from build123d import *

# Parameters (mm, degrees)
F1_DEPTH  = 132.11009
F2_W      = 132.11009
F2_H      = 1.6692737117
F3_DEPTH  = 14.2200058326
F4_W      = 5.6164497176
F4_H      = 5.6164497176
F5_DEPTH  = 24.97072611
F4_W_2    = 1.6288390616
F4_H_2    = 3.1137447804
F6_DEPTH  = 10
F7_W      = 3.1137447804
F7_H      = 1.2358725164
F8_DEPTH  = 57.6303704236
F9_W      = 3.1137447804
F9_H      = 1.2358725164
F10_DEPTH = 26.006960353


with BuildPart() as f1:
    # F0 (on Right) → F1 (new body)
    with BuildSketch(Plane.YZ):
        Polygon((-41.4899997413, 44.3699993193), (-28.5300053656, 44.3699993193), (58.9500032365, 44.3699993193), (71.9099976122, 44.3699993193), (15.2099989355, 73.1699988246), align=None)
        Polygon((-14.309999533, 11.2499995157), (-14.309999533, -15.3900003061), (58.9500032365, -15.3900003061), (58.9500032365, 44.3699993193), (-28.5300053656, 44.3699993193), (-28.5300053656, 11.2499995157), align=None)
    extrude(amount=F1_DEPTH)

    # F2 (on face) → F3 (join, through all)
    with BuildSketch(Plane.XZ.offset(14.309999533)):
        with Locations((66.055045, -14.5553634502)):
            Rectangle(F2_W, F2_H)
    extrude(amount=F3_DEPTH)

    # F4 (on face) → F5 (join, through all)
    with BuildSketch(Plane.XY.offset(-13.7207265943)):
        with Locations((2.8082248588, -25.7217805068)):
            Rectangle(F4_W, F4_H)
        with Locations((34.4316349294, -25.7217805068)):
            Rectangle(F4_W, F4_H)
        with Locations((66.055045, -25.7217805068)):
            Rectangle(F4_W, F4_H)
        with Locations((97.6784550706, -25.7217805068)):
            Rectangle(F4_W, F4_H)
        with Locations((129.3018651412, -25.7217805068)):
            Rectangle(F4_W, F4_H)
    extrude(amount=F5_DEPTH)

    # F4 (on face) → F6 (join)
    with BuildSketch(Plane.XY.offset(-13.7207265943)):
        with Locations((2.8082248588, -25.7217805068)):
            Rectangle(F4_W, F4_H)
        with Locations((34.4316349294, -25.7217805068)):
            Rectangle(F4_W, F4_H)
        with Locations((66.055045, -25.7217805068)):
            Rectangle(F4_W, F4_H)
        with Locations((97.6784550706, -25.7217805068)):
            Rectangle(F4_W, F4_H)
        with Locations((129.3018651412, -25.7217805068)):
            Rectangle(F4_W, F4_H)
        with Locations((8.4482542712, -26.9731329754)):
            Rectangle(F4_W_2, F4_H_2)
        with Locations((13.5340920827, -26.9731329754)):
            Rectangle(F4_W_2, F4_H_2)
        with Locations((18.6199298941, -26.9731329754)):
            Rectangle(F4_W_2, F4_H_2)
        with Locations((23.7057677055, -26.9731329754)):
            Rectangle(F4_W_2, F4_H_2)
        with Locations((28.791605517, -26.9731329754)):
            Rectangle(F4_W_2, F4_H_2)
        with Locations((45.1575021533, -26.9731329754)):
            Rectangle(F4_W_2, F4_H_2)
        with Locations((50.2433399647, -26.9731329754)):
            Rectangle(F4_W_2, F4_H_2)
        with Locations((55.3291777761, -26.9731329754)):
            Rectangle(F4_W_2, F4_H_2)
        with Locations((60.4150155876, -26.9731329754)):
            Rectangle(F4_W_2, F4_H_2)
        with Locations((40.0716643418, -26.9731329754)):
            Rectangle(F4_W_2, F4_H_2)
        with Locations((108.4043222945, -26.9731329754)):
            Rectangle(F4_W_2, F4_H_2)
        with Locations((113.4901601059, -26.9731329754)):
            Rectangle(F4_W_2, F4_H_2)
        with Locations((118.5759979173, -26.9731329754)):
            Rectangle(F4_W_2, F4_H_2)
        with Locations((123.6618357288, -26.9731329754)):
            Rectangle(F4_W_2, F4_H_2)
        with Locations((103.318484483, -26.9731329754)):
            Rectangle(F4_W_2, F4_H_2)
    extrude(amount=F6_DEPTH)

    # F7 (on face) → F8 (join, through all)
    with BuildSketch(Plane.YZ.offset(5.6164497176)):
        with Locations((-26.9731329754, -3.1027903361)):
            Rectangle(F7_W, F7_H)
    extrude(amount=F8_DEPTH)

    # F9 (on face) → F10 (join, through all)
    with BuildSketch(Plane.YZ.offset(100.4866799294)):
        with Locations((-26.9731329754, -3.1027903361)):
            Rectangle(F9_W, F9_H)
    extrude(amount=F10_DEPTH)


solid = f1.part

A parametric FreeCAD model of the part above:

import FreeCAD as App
import Part
import Sketcher
from FreeCAD import Vector


def add_polygon(sketch, points):
    """Adds a closed chain of lines whose ends are joined by coincident constraints."""
    first, n = sketch.GeometryCount, len(points)
    for a, b in zip(points, points[1:] + points[:1]):
        sketch.addGeometry(Part.LineSegment(App.Vector(*a, 0), App.Vector(*b, 0)), False)
    for i in range(n):
        sketch.addConstraint(Sketcher.Constraint("Coincident", first + i, 2, first + (i + 1) % n, 1))

doc = App.newDocument("Part")
params = doc.addObject("Spreadsheet::Sheet", "Params")
for row, (alias, value) in enumerate([
    ("sketch1_height", "33.12 mm"),
    ("sketch1_height2", "26.64 mm"),
    ("pad1_length", "132.11009 mm"),
    ("pad2_length", "14.220006 mm"),
    ("pad4_length", "10 mm"),
    ("pad5_length", "57.63037 mm"),
], start=1):
    params.set(f"A{row}", alias)
    params.set(f"B{row}", "=" + value)
    params.setAlias(f"B{row}", alias)

body = doc.addObject("PartDesign::Body", "Body")

# Sketch on YZ plane
sketch1 = body.newObject("Sketcher::SketchObject", "Sketch")
sketch1.AttachmentSupport = (doc.getObject("YZ_Plane"), [""])
sketch1.MapMode = "FlatFace"
add_polygon(sketch1, [(-41, 44), (-29, 44), (-29, 11), (-14, 11), (-14, -15), (59, -15), (59, 44), (72, 44), (15, 73)])  # lines 0-8
sketch1.addConstraint([
    Sketcher.Constraint("Horizontal", 0),
    Sketcher.Constraint("Vertical", 1),
    Sketcher.Constraint("Horizontal", 2),
    Sketcher.Constraint("Vertical", 3),
    Sketcher.Constraint("Horizontal", 4),
    Sketcher.Constraint("Vertical", 5),
    Sketcher.Constraint("Horizontal", 6),
    Sketcher.Constraint("Horizontal", 0, 2, 5, 2),
    Sketcher.Constraint("Equal", 0, 6),
    Sketcher.Constraint("Equal", 7, 8),
    Sketcher.Constraint("DistanceY", 1, 2, 1, 1, 33.12),
    Sketcher.Constraint("DistanceY", 3, 2, 3, 1, 26.64),
    Sketcher.Constraint("DistanceY", 0, 2, 7, 2, 28.8),
    Sketcher.Constraint("DistanceX", 7, 2, 6, 2, 56.699999),
    Sketcher.Constraint("DistanceY", -1, 1, 0, 2, 44.369999),
    Sketcher.Constraint("DistanceX", 2, 2, -1, 1, 14.31),
    Sketcher.Constraint("DistanceX", -1, 1, 7, 2, 15.209999),
    Sketcher.Constraint("DistanceX", 0, 1, 0, 2, 12.959994),
])
sketch1.setExpression("Constraints[19]", "Params.sketch1_height")
sketch1.setExpression("Constraints[20]", "Params.sketch1_height2")
pad1 = body.newObject("PartDesign::Pad", "Pad")
pad1.Profile = sketch1
pad1.setExpression("Length", "Params.pad1_length")

# Sketch on XZ plane
sketch2 = body.newObject("Sketcher::SketchObject", "Sketch001")
sketch2.AttachmentSupport = (doc.getObject("XZ_Plane"), [""])
sketch2.MapMode = "FlatFace"
sketch2.AttachmentOffset = App.Placement(Vector(0, 0, 14.31), App.Rotation())
add_polygon(sketch2, [(0, -13.7), (0, -15.4), (132.1, -15.4), (132.1, -13.7)])  # lines 0-3
sketch2.addConstraint([
    Sketcher.Constraint("Vertical", 0),
    Sketcher.Constraint("Horizontal", 1),
    Sketcher.Constraint("Vertical", 2),
    Sketcher.Constraint("Horizontal", 3),
    Sketcher.Constraint("PointOnObject", 0, 2, -2),
    Sketcher.Constraint("DistanceY", 0, 2, -1, 1, 15.39),
    Sketcher.Constraint("DistanceX", 1, 1, 1, 2, 132.11009),
    Sketcher.Constraint("DistanceY", 0, 2, 0, 1, 1.669274),
])
pad2 = body.newObject("PartDesign::Pad", "Pad001")
pad2.Profile = sketch2
pad2.setExpression("Length", "Params.pad2_length")

# Sketch on XY plane
sketch3 = body.newObject("Sketcher::SketchObject", "Sketch002")
sketch3.AttachmentSupport = (doc.getObject("XY_Plane"), [""])
sketch3.MapMode = "FlatFace"
sketch3.AttachmentOffset = App.Placement(Vector(0, 0, -13.720727), App.Rotation())
add_polygon(sketch3, [(0, -23), (0, -29), (6, -29), (6, -23)])  # lines 0-3
add_polygon(sketch3, [(32, -23), (32, -29), (37, -29), (37, -23)])  # lines 4-7
add_polygon(sketch3, [(63, -23), (63, -29), (69, -29), (69, -23)])  # lines 8-11
add_polygon(sketch3, [(95, -23), (95, -29), (100, -29), (100, -23)])  # lines 12-15
add_polygon(sketch3, [(126, -23), (126, -29), (132, -29), (132, -23)])  # lines 16-19
sketch3.addConstraint([
    Sketcher.Constraint("Vertical", 0),
    Sketcher.Constraint("Horizontal", 1),
    Sketcher.Constraint("Vertical", 2),
    Sketcher.Constraint("Horizontal", 3),
    Sketcher.Constraint("Vertical", 4),
    Sketcher.Constraint("Horizontal", 5),
    Sketcher.Constraint("Vertical", 6),
    Sketcher.Constraint("Horizontal", 7),
    Sketcher.Constraint("Vertical", 8),
    Sketcher.Constraint("Horizontal", 9),
    Sketcher.Constraint("Vertical", 10),
    Sketcher.Constraint("Horizontal", 11),
    Sketcher.Constraint("Vertical", 12),
    Sketcher.Constraint("Horizontal", 13),
    Sketcher.Constraint("Vertical", 14),
    Sketcher.Constraint("Horizontal", 15),
    Sketcher.Constraint("Vertical", 16),
    Sketcher.Constraint("Horizontal", 17),
    Sketcher.Constraint("Vertical", 18),
    Sketcher.Constraint("Horizontal", 19),
    Sketcher.Constraint("PointOnObject", 0, 2, -2),
    Sketcher.Constraint("Horizontal", 1, 2, 4, 2),
    Sketcher.Constraint("Horizontal", 3, 2, 6, 2),
    Sketcher.Constraint("Horizontal", 5, 2, 8, 2),
    Sketcher.Constraint("Horizontal", 7, 2, 10, 2),
    Sketcher.Constraint("Horizontal", 9, 2, 12, 2),
    Sketcher.Constraint("Horizontal", 11, 2, 14, 2),
    Sketcher.Constraint("Horizontal", 13, 2, 16, 2),
    Sketcher.Constraint("Horizontal", 15, 2, 18, 2),
    Sketcher.Constraint("Equal", 3, 5),
    Sketcher.Constraint("Equal", 7, 9),
    Sketcher.Constraint("Equal", 11, 13),
    Sketcher.Constraint("Equal", 15, 17),
    Sketcher.Constraint("Equal", 19, 0),
    Sketcher.Constraint("DistanceX", 1, 1, 1, 2, 5.61645),
    Sketcher.Constraint("DistanceX", -1, 1, 4, 2, 31.62341),
    Sketcher.Constraint("DistanceX", -1, 1, 8, 2, 63.24682),
    Sketcher.Constraint("DistanceX", -1, 1, 12, 2, 94.87023),
    Sketcher.Constraint("DistanceX", -1, 1, 16, 2, 126.49364),
    Sketcher.Constraint("DistanceY", 0, 2, -1, 1, 28.530005),
])
pad3 = body.newObject("PartDesign::Pad", "Pad002")
pad3.Profile = sketch3
pad3.Type = "UpToLast"

# Sketch on XY plane
sketch4 = body.newObject("Sketcher::SketchObject", "Sketch003")
sketch4.AttachmentSupport = (doc.getObject("XY_Plane"), [""])
sketch4.MapMode = "FlatFace"
sketch4.AttachmentOffset = App.Placement(Vector(0, 0, -13.720727), App.Rotation())
add_polygon(sketch4, [(0, -22.9), (0, -28.5), (5.6, -28.5), (5.6, -22.9)])  # lines 0-3
add_polygon(sketch4, [(31.6, -22.9), (31.6, -28.5), (37.2, -28.5), (37.2, -22.9)])  # lines 4-7
add_polygon(sketch4, [(63.2, -22.9), (63.2, -28.5), (68.9, -28.5), (68.9, -22.9)])  # lines 8-11
add_polygon(sketch4, [(94.9, -22.9), (94.9, -28.5), (100.5, -28.5), (100.5, -22.9)])  # lines 12-15
add_polygon(sketch4, [(126.5, -22.9), (126.5, -28.5), (132.1, -28.5), (132.1, -22.9)])  # lines 16-19
add_polygon(sketch4, [(7.6, -25.4), (7.6, -28.5), (9.3, -28.5), (9.3, -25.4)])  # lines 20-23
add_polygon(sketch4, [(12.7, -25.4), (12.7, -28.5), (14.3, -28.5), (14.3, -25.4)])  # lines 24-27
add_polygon(sketch4, [(17.8, -25.4), (17.8, -28.5), (19.4, -28.5), (19.4, -25.4)])  # lines 28-31
add_polygon(sketch4, [(22.9, -25.4), (22.9, -28.5), (24.5, -28.5), (24.5, -25.4)])  # lines 32-35
add_polygon(sketch4, [(28, -25.4), (28, -28.5), (29.6, -28.5), (29.6, -25.4)])  # lines 36-39
add_polygon(sketch4, [(44.3, -25.4), (44.3, -28.5), (46, -28.5), (46, -25.4)])  # lines 40-43
add_polygon(sketch4, [(49.4, -25.4), (49.4, -28.5), (51.1, -28.5), (51.1, -25.4)])  # lines 44-47
add_polygon(sketch4, [(54.5, -25.4), (54.5, -28.5), (56.1, -28.5), (56.1, -25.4)])  # lines 48-51
add_polygon(sketch4, [(59.6, -25.4), (59.6, -28.5), (61.2, -28.5), (61.2, -25.4)])  # lines 52-55
add_polygon(sketch4, [(39.3, -25.4), (39.3, -28.5), (40.9, -28.5), (40.9, -25.4)])  # lines 56-59
add_polygon(sketch4, [(107.6, -25.4), (107.6, -28.5), (109.2, -28.5), (109.2, -25.4)])  # lines 60-63
add_polygon(sketch4, [(112.7, -25.4), (112.7, -28.5), (114.3, -28.5), (114.3, -25.4)])  # lines 64-67
add_polygon(sketch4, [(117.8, -25.4), (117.8, -28.5), (119.4, -28.5), (119.4, -25.4)])  # lines 68-71
add_polygon(sketch4, [(122.8, -25.4), (122.8, -28.5), (124.5, -28.5), (124.5, -25.4)])  # lines 72-75
add_polygon(sketch4, [(102.5, -25.4), (102.5, -28.5), (104.1, -28.5), (104.1, -25.4)])  # lines 76-79
sketch4.addConstraint([
    Sketcher.Constraint("Vertical", 0),
    Sketcher.Constraint("Horizontal", 1),
    Sketcher.Constraint("Vertical", 2),
    Sketcher.Constraint("Horizontal", 3),
    Sketcher.Constraint("Vertical", 4),
    Sketcher.Constraint("Horizontal", 5),
    Sketcher.Constraint("Vertical", 6),
    Sketcher.Constraint("Horizontal", 7),
    Sketcher.Constraint("Vertical", 8),
    Sketcher.Constraint("Horizontal", 9),
    Sketcher.Constraint("Vertical", 10),
    Sketcher.Constraint("Horizontal", 11),
    Sketcher.Constraint("Vertical", 12),
    Sketcher.Constraint("Horizontal", 13),
    Sketcher.Constraint("Vertical", 14),
    Sketcher.Constraint("Horizontal", 15),
    Sketcher.Constraint("Vertical", 16),
    Sketcher.Constraint("Horizontal", 17),
    Sketcher.Constraint("Vertical", 18),
    Sketcher.Constraint("Horizontal", 19),
    Sketcher.Constraint("Vertical", 20),
    Sketcher.Constraint("Horizontal", 21),
    Sketcher.Constraint("Vertical", 22),
    Sketcher.Constraint("Horizontal", 23),
    Sketcher.Constraint("Vertical", 24),
    Sketcher.Constraint("Horizontal", 25),
    Sketcher.Constraint("Vertical", 26),
    Sketcher.Constraint("Horizontal", 27),
    Sketcher.Constraint("Vertical", 28),
    Sketcher.Constraint("Horizontal", 29),
    Sketcher.Constraint("Vertical", 30),
    Sketcher.Constraint("Horizontal", 31),
    Sketcher.Constraint("Vertical", 32),
    Sketcher.Constraint("Horizontal", 33),
    Sketcher.Constraint("Vertical", 34),
    Sketcher.Constraint("Horizontal", 35),
    Sketcher.Constraint("Vertical", 36),
    Sketcher.Constraint("Horizontal", 37),
    Sketcher.Constraint("Vertical", 38),
    Sketcher.Constraint("Horizontal", 39),
    Sketcher.Constraint("Vertical", 40),
    Sketcher.Constraint("Horizontal", 41),
    Sketcher.Constraint("Vertical", 42),
    Sketcher.Constraint("Horizontal", 43),
    Sketcher.Constraint("Vertical", 44),
    Sketcher.Constraint("Horizontal", 45),
    Sketcher.Constraint("Vertical", 46),
    Sketcher.Constraint("Horizontal", 47),
    Sketcher.Constraint("Vertical", 48),
    Sketcher.Constraint("Horizontal", 49),
    Sketcher.Constraint("Vertical", 50),
    Sketcher.Constraint("Horizontal", 51),
    Sketcher.Constraint("Vertical", 52),
    Sketcher.Constraint("Horizontal", 53),
    Sketcher.Constraint("Vertical", 54),
    Sketcher.Constraint("Horizontal", 55),
    Sketcher.Constraint("Vertical", 56),
    Sketcher.Constraint("Horizontal", 57),
    Sketcher.Constraint("Vertical", 58),
    Sketcher.Constraint("Horizontal", 59),
    Sketcher.Constraint("Vertical", 60),
    Sketcher.Constraint("Horizontal", 61),
    Sketcher.Constraint("Vertical", 62),
    Sketcher.Constraint("Horizontal", 63),
    Sketcher.Constraint("Vertical", 64),
    Sketcher.Constraint("Horizontal", 65),
    Sketcher.Constraint("Vertical", 66),
    Sketcher.Constraint("Horizontal", 67),
    Sketcher.Constraint("Vertical", 68),
    Sketcher.Constraint("Horizontal", 69),
    Sketcher.Constraint("Vertical", 70),
    Sketcher.Constraint("Horizontal", 71),
    Sketcher.Constraint("Vertical", 72),
    Sketcher.Constraint("Horizontal", 73),
    Sketcher.Constraint("Vertical", 74),
    Sketcher.Constraint("Horizontal", 75),
    Sketcher.Constraint("Vertical", 76),
    Sketcher.Constraint("Horizontal", 77),
    Sketcher.Constraint("Vertical", 78),
    Sketcher.Constraint("Horizontal", 79),
    Sketcher.Constraint("PointOnObject", 0, 2, -2),
    Sketcher.Constraint("Horizontal", 1, 2, 4, 2),
    Sketcher.Constraint("Horizontal", 3, 2, 6, 2),
    Sketcher.Constraint("Horizontal", 5, 2, 8, 2),
    Sketcher.Constraint("Horizontal", 7, 2, 10, 2),
    Sketcher.Constraint("Horizontal", 9, 2, 12, 2),
    Sketcher.Constraint("Horizontal", 11, 2, 14, 2),
    Sketcher.Constraint("Horizontal", 13, 2, 16, 2),
    Sketcher.Constraint("Horizontal", 15, 2, 18, 2),
    Sketcher.Constraint("Horizontal", 17, 2, 20, 2),
    Sketcher.Constraint("Horizontal", 21, 2, 24, 2),
    Sketcher.Constraint("Horizontal", 23, 2, 26, 2),
    Sketcher.Constraint("Horizontal", 25, 2, 28, 2),
    Sketcher.Constraint("Horizontal", 27, 2, 30, 2),
    Sketcher.Constraint("Horizontal", 29, 2, 32, 2),
    Sketcher.Constraint("Horizontal", 31, 2, 34, 2),
    Sketcher.Constraint("Horizontal", 33, 2, 36, 2),
    Sketcher.Constraint("Horizontal", 35, 2, 38, 2),
    Sketcher.Constraint("Horizontal", 37, 2, 40, 2),
    Sketcher.Constraint("Horizontal", 39, 2, 42, 2),
    Sketcher.Constraint("Horizontal", 41, 2, 44, 2),
    Sketcher.Constraint("Horizontal", 43, 2, 46, 2),
    Sketcher.Constraint("Horizontal", 45, 2, 48, 2),
    Sketcher.Constraint("Horizontal", 47, 2, 50, 2),
    Sketcher.Constraint("Horizontal", 49, 2, 52, 2),
    Sketcher.Constraint("Horizontal", 51, 2, 54, 2),
    Sketcher.Constraint("Horizontal", 53, 2, 56, 2),
    Sketcher.Constraint("Horizontal", 55, 2, 58, 2),
    Sketcher.Constraint("Horizontal", 57, 2, 60, 2),
    Sketcher.Constraint("Horizontal", 59, 2, 62, 2),
    Sketcher.Constraint("Horizontal", 61, 2, 64, 2),
    Sketcher.Constraint("Horizontal", 63, 2, 66, 2),
    Sketcher.Constraint("Horizontal", 65, 2, 68, 2),
    Sketcher.Constraint("Horizontal", 67, 2, 70, 2),
    Sketcher.Constraint("Horizontal", 69, 2, 72, 2),
    Sketcher.Constraint("Horizontal", 71, 2, 74, 2),
    Sketcher.Constraint("Horizontal", 73, 2, 76, 2),
    Sketcher.Constraint("Horizontal", 75, 2, 78, 2),
    Sketcher.Constraint("Equal", 3, 5),
    Sketcher.Constraint("Equal", 7, 9),
    Sketcher.Constraint("Equal", 11, 13),
    Sketcher.Constraint("Equal", 15, 17),
    Sketcher.Constraint("Equal", 23, 25),
    Sketcher.Constraint("Equal", 27, 29),
    Sketcher.Constraint("Equal", 31, 33),
    Sketcher.Constraint("Equal", 35, 37),
    Sketcher.Constraint("Equal", 39, 41),
    Sketcher.Constraint("Equal", 43, 45),
    Sketcher.Constraint("Equal", 47, 49),
    Sketcher.Constraint("Equal", 51, 53),
    Sketcher.Constraint("Equal", 55, 57),
    Sketcher.Constraint("Equal", 59, 61),
    Sketcher.Constraint("Equal", 63, 65),
    Sketcher.Constraint("Equal", 67, 69),
    Sketcher.Constraint("Equal", 71, 73),
    Sketcher.Constraint("Equal", 75, 77),
    Sketcher.Constraint("Equal", 19, 0),
    Sketcher.Constraint("DistanceX", 1, 1, 1, 2, 5.61645),
    Sketcher.Constraint("DistanceX", 21, 1, 21, 2, 1.628839),
    Sketcher.Constraint("DistanceY", 20, 2, 20, 1, 3.113745),
    Sketcher.Constraint("DistanceX", -1, 1, 4, 2, 31.62341),
    Sketcher.Constraint("DistanceX", -1, 1, 8, 2, 63.24682),
    Sketcher.Constraint("DistanceX", -1, 1, 12, 2, 94.87023),
    Sketcher.Constraint("DistanceX", -1, 1, 16, 2, 126.49364),
    Sketcher.Constraint("DistanceY", 22, 2, -1, 1, 25.416261),
    Sketcher.Constraint("DistanceX", -1, 1, 25, 2, 14.348512),
    Sketcher.Constraint("DistanceX", -1, 1, 28, 2, 17.80551),
    Sketcher.Constraint("DistanceX", -1, 1, 32, 2, 22.891348),
    Sketcher.Constraint("DistanceX", -1, 1, 41, 2, 45.971922),
    Sketcher.Constraint("DistanceX", -1, 1, 44, 2, 49.42892),
    Sketcher.Constraint("DistanceX", -1, 1, 48, 2, 54.514758),
    Sketcher.Constraint("DistanceX", -1, 1, 61, 2, 109.218742),
    Sketcher.Constraint("DistanceX", -1, 1, 64, 2, 112.675741),
    Sketcher.Constraint("DistanceX", -1, 1, 68, 2, 117.761578),
    Sketcher.Constraint("DistanceX", -1, 1, 20, 2, 7.633835),
    Sketcher.Constraint("DistanceX", -1, 1, 36, 2, 27.977186),
    Sketcher.Constraint("DistanceX", -1, 1, 52, 2, 59.600596),
    Sketcher.Constraint("DistanceX", -1, 1, 56, 2, 39.257245),
    Sketcher.Constraint("DistanceX", -1, 1, 72, 2, 122.847416),
    Sketcher.Constraint("DistanceX", -1, 1, 76, 2, 102.504065),
])
pad4 = body.newObject("PartDesign::Pad", "Pad003")
pad4.Profile = sketch4
pad4.setExpression("Length", "Params.pad4_length")

# Sketch on YZ plane
sketch5 = body.newObject("Sketcher::SketchObject", "Sketch004")
sketch5.AttachmentSupport = (doc.getObject("YZ_Plane"), [""])
sketch5.MapMode = "FlatFace"
sketch5.AttachmentOffset = App.Placement(Vector(0, 0, 5.61645), App.Rotation())
add_polygon(sketch5, [(-28.5, -2.5), (-28.5, -3.7), (-25.4, -3.7), (-25.4, -2.5)])  # lines 0-3
sketch5.addConstraint([
    Sketcher.Constraint("Vertical", 0),
    Sketcher.Constraint("Horizontal", 1),
    Sketcher.Constraint("Vertical", 2),
    Sketcher.Constraint("Horizontal", 3),
    Sketcher.Constraint("DistanceX", 1, 1, 1, 2, 3.113745),
    Sketcher.Constraint("DistanceY", 0, 2, 0, 1, 1.235873),
    Sketcher.Constraint("DistanceX", 1, 2, -1, 1, 25.416261),
    Sketcher.Constraint("DistanceY", 0, 2, -1, 1, 3.720727),
])
pad5 = body.newObject("PartDesign::Pad", "Pad004")
pad5.Profile = sketch5
pad5.setExpression("Length", "Params.pad5_length")

# Sketch on YZ plane
sketch6 = body.newObject("Sketcher::SketchObject", "Sketch005")
sketch6.AttachmentSupport = (doc.getObject("YZ_Plane"), [""])
sketch6.MapMode = "FlatFace"
sketch6.AttachmentOffset = App.Placement(Vector(0, 0, 100.48668), App.Rotation())
add_polygon(sketch6, [(-28.5, -2.5), (-28.5, -3.7), (-25.4, -3.7), (-25.4, -2.5)])  # lines 0-3
sketch6.addConstraint([
    Sketcher.Constraint("Vertical", 0),
    Sketcher.Constraint("Horizontal", 1),
    Sketcher.Constraint("Vertical", 2),
    Sketcher.Constraint("Horizontal", 3),
    Sketcher.Constraint("DistanceX", 1, 1, 1, 2, 3.113745),
    Sketcher.Constraint("DistanceY", 0, 2, 0, 1, 1.235873),
    Sketcher.Constraint("DistanceX", 1, 2, -1, 1, 25.416261),
    Sketcher.Constraint("DistanceY", 0, 2, -1, 1, 3.720727),
])
pad6 = body.newObject("PartDesign::Pad", "Pad005")
pad6.Profile = sketch6
pad6.Type = "UpToLast"

doc.recompute()
